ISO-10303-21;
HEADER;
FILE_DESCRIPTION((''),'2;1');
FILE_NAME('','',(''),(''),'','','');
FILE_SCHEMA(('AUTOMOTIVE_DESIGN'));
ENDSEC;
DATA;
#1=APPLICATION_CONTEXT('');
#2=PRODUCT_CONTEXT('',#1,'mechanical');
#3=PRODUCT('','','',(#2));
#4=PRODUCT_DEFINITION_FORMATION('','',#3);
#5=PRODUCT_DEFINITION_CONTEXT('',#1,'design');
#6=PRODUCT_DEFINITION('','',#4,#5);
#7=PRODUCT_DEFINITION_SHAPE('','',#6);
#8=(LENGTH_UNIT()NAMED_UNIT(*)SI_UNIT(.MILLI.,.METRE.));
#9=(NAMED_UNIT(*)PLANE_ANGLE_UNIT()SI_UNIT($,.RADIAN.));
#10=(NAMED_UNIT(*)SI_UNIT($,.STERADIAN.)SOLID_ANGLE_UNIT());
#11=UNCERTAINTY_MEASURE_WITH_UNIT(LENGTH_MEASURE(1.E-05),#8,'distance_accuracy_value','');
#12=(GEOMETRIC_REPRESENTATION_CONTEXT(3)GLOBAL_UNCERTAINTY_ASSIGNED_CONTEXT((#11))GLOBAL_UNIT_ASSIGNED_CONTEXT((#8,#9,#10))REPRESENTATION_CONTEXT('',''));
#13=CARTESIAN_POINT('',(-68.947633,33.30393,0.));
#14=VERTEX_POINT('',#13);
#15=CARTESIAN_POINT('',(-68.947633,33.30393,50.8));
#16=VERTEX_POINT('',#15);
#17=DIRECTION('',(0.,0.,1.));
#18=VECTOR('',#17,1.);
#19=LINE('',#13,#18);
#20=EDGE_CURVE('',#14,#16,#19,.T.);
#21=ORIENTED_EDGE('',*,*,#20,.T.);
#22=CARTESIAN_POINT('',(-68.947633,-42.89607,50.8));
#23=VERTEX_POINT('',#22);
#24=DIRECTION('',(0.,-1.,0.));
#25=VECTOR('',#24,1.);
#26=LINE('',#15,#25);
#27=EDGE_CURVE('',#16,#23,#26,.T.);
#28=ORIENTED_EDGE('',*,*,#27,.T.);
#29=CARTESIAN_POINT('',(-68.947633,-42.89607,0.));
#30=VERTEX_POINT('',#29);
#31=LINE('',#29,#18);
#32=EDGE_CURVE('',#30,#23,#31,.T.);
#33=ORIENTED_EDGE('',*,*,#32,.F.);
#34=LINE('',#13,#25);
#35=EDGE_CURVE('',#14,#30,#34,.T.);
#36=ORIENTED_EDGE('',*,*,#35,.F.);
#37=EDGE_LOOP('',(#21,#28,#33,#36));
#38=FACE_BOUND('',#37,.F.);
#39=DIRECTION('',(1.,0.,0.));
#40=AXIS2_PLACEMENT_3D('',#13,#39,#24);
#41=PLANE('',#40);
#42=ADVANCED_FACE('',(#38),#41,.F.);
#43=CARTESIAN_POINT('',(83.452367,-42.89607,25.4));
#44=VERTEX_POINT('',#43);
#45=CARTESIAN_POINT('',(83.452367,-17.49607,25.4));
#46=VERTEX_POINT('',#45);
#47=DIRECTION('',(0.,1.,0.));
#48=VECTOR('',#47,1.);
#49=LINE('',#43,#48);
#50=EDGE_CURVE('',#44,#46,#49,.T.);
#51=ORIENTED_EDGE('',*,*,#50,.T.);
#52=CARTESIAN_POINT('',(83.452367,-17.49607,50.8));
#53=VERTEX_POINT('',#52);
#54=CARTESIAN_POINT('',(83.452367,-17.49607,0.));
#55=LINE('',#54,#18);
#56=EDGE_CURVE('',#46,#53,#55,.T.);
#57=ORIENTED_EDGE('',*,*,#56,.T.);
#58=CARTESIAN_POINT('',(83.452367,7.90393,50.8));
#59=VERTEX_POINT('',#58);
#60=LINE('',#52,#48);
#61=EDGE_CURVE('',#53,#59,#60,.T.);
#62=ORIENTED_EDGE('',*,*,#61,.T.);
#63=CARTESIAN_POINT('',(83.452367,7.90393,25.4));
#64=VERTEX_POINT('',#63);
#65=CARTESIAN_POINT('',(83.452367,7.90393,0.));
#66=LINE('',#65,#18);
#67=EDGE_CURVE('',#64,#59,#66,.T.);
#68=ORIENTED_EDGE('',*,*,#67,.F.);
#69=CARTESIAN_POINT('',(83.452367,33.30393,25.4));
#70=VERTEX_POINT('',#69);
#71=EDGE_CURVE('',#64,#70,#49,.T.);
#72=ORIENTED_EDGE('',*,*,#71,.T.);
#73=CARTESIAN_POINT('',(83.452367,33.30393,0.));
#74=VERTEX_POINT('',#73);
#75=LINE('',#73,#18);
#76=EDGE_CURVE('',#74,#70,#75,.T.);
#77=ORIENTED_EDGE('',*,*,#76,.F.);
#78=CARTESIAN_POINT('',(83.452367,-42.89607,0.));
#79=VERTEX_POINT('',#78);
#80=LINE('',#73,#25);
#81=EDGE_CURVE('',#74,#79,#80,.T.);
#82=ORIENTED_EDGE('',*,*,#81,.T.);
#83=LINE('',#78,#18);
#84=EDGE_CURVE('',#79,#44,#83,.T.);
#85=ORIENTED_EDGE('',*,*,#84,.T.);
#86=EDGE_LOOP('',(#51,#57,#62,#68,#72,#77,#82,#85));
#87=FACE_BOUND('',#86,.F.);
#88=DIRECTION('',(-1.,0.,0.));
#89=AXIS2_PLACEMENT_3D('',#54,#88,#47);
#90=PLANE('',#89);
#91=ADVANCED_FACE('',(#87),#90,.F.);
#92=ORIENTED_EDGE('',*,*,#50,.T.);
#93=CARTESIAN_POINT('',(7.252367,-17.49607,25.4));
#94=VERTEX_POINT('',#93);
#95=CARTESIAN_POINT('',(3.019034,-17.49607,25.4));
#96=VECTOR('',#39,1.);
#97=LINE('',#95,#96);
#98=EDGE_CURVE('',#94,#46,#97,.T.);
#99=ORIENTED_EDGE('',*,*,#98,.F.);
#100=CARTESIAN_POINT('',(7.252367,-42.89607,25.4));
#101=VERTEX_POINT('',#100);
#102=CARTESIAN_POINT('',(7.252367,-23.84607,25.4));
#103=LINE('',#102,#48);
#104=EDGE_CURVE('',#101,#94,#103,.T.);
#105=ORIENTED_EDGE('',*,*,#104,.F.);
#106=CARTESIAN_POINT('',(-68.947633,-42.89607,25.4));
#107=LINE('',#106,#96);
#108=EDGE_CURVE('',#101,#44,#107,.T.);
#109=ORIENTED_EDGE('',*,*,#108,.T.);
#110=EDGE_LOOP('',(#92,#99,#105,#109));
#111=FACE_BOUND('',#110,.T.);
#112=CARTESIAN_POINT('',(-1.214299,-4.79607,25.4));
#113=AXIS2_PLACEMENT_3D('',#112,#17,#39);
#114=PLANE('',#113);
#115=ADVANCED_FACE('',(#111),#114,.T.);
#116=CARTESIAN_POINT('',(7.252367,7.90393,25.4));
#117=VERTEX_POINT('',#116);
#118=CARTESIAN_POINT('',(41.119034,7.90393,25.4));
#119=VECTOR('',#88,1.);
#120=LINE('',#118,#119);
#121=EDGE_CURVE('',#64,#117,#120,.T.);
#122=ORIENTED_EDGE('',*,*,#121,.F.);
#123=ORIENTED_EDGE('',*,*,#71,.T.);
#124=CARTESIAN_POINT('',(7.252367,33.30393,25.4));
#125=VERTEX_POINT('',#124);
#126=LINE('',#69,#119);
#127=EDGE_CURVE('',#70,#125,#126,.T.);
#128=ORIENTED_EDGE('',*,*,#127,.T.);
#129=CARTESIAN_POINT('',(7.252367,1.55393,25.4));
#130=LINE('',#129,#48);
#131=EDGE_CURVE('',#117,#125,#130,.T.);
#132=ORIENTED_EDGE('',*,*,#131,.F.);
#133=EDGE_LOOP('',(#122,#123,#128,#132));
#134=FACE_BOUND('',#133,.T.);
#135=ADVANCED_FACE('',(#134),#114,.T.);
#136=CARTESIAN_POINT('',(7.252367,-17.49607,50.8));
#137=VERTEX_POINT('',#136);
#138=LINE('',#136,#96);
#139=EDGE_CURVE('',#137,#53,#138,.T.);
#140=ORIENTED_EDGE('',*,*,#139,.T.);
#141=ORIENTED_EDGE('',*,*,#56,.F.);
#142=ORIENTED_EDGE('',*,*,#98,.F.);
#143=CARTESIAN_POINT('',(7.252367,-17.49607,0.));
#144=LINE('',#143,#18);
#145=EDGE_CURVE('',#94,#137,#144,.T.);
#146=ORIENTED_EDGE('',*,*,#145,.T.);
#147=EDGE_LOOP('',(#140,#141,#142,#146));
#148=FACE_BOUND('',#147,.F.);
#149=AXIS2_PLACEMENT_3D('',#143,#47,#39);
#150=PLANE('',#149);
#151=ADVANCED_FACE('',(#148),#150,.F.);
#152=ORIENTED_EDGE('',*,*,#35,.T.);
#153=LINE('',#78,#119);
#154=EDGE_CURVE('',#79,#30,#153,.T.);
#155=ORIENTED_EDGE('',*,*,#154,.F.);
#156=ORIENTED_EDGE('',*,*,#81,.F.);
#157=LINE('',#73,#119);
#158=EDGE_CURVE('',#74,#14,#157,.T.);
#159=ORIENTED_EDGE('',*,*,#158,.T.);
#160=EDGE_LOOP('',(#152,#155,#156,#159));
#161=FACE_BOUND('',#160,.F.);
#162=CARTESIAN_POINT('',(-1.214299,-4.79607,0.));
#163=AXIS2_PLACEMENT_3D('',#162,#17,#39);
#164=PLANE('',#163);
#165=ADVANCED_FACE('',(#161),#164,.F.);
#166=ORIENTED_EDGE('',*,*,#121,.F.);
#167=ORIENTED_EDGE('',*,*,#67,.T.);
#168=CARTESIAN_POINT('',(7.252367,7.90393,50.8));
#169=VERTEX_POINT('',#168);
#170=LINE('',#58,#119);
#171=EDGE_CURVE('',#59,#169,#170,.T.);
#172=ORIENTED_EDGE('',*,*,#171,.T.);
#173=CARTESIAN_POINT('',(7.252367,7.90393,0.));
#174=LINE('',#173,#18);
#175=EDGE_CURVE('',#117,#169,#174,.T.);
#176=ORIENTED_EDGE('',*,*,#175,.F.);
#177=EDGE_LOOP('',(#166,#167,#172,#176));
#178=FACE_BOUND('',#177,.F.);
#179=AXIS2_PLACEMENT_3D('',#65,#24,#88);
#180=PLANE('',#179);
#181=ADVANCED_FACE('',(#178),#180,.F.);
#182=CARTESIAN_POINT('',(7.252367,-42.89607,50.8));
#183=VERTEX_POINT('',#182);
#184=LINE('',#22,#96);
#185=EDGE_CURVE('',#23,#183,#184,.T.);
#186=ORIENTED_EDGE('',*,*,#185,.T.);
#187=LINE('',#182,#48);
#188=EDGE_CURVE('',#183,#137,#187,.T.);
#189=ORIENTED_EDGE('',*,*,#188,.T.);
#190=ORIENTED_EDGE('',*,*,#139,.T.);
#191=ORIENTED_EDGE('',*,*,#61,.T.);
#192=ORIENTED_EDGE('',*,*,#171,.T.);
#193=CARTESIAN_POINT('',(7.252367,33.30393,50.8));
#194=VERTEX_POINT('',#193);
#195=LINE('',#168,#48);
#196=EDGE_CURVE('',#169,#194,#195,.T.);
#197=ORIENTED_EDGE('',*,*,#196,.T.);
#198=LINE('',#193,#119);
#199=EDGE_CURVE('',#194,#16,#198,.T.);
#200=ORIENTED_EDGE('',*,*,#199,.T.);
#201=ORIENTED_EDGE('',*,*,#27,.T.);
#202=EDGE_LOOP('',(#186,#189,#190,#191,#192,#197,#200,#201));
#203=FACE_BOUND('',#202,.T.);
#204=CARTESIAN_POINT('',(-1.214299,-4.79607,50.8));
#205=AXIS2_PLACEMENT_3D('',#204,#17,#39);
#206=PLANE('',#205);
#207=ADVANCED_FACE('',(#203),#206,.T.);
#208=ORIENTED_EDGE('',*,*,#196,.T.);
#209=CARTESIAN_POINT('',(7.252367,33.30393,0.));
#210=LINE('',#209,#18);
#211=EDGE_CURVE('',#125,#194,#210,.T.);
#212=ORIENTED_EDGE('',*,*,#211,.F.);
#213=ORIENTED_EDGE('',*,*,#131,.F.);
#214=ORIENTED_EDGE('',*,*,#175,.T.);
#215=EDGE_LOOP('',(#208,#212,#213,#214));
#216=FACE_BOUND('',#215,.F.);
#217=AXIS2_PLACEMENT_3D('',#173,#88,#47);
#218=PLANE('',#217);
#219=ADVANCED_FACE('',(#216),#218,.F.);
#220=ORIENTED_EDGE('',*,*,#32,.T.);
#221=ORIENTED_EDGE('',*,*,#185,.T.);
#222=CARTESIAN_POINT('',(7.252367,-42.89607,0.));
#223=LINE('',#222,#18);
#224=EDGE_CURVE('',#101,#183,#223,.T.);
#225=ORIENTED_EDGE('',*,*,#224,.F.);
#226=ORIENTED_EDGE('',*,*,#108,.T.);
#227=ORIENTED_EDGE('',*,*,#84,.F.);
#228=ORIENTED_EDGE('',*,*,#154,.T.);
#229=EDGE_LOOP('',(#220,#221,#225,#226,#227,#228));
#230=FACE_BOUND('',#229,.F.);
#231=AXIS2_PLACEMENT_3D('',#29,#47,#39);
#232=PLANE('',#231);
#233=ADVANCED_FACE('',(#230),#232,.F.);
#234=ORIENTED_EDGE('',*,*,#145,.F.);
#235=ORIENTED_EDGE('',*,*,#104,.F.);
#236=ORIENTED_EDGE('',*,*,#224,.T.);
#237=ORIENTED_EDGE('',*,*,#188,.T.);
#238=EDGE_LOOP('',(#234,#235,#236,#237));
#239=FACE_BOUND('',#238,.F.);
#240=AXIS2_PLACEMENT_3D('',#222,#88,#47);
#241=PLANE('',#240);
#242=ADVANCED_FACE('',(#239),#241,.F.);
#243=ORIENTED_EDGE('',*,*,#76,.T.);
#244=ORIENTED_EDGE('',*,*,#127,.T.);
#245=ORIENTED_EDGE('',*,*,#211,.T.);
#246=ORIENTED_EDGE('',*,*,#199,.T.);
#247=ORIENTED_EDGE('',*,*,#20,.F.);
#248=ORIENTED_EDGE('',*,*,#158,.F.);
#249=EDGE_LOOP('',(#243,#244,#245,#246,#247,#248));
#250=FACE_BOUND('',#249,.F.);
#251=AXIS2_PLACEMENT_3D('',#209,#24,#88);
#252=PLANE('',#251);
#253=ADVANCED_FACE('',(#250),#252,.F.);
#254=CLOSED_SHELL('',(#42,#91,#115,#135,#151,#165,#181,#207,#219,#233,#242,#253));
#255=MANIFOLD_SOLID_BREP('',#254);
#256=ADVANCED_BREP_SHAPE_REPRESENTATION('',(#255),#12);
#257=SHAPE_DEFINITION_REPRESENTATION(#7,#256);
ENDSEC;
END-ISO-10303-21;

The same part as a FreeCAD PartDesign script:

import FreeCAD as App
import Part
import Sketcher

V = App.Vector
Q = App.Units.Quantity

doc = App.newDocument("Part")
body = doc.addObject("PartDesign::Body", "Body")

# Sketch on XY plane
sketch1 = body.newObject("Sketcher::SketchObject", "Sketch")
sketch1.AttachmentSupport = (doc.getObject("XY_Plane"), [""])
sketch1.MapMode = "FlatFace"
sketch1.addGeometry(Part.LineSegment(V(7.252367, 33.30393, 0), V(-68.947633, 33.30393, 0)), False)
sketch1.addGeometry(Part.LineSegment(V(-68.947633, 33.30393, 0), V(-68.947633, -42.89607, 0)), False)
sketch1.addGeometry(Part.LineSegment(V(-68.947633, -42.89607, 0), V(7.252367, -42.89607, 0)), False)
sketch1.addGeometry(Part.LineSegment(V(7.252367, -42.89607, 0), V(7.252367, -17.49607, 0)), False)
sketch1.addGeometry(Part.LineSegment(V(7.252367, -17.49607, 0), V(83.452367, -17.49607, 0)), False)
sketch1.addGeometry(Part.LineSegment(V(83.452367, -17.49607, 0), V(83.452367, 7.90393, 0)), False)
sketch1.addGeometry(Part.LineSegment(V(83.452367, 7.90393, 0), V(7.252367, 7.90393, 0)), False)
sketch1.addGeometry(Part.LineSegment(V(7.252367, 7.90393, 0), V(7.252367, 33.30393, 0)), False)
sketch1.addConstraint(Sketcher.Constraint("Coincident", 0, 2, 1, 1))
sketch1.addConstraint(Sketcher.Constraint("Coincident", 1, 2, 2, 1))
sketch1.addConstraint(Sketcher.Constraint("Coincident", 2, 2, 3, 1))
sketch1.addConstraint(Sketcher.Constraint("Coincident", 3, 2, 4, 1))
sketch1.addConstraint(Sketcher.Constraint("Coincident", 4, 2, 5, 1))
sketch1.addConstraint(Sketcher.Constraint("Coincident", 5, 2, 6, 1))
sketch1.addConstraint(Sketcher.Constraint("Coincident", 6, 2, 7, 1))
sketch1.addConstraint(Sketcher.Constraint("Coincident", 7, 2, 0, 1))
sketch1.addConstraint(Sketcher.Constraint("Horizontal", 0))
sketch1.addConstraint(Sketcher.Constraint("Vertical", 1))
sketch1.addConstraint(Sketcher.Constraint("Horizontal", 2))
sketch1.addConstraint(Sketcher.Constraint("Vertical", 3))
sketch1.addConstraint(Sketcher.Constraint("Horizontal", 4))
sketch1.addConstraint(Sketcher.Constraint("Vertical", 5))
sketch1.addConstraint(Sketcher.Constraint("Horizontal", 6))
sketch1.addConstraint(Sketcher.Constraint("Vertical", 7))
sketch1.addConstraint(Sketcher.Constraint("Vertical", 3, 2, 6, 2))
sketch1.addConstraint(Sketcher.Constraint("Equal", 2, 4))
sketch1.addConstraint(Sketcher.Constraint("Equal", 6, 1))
sketch1.addConstraint(Sketcher.Constraint("Equal", 3, 5))
sketch1.addConstraint(Sketcher.Constraint("Equal", 5, 7))
sketch1.addConstraint(Sketcher.Constraint("DistanceX", 0, 2, 0, 1, Q("3 in")))
sketch1.addConstraint(Sketcher.Constraint("DistanceY", -1, 1, 0, 2, Q("33.30393 mm")))
sketch1.addConstraint(Sketcher.Constraint("DistanceX", 0, 2, -1, 1, Q("68.947633 mm")))
pad1 = body.newObject("PartDesign::Pad", "Pad")
pad1.Profile = sketch1
pad1.Length = Q("2 in")

# Sketch on XY plane
sketch2 = body.newObject("Sketcher::SketchObject", "Sketch001")
sketch2.AttachmentSupport = (doc.getObject("XY_Plane"), [""])
sketch2.MapMode = "FlatFace"
sketch2.addGeometry(Part.LineSegment(V(-68.947633, 33.30393, 0), V(-68.947633, -42.89607, 0)), False)
sketch2.addGeometry(Part.LineSegment(V(-68.947633, -42.89607, 0), V(83.452367, -42.89607, 0)), False)
sketch2.addGeometry(Part.LineSegment(V(83.452367, -42.89607, 0), V(83.452367, 33.30393, 0)), False)
sketch2.addGeometry(Part.LineSegment(V(83.452367, 33.30393, 0), V(-68.947633, 33.30393, 0)), False)
sketch2.addConstraint(Sketcher.Constraint("Coincident", 0, 2, 1, 1))
sketch2.addConstraint(Sketcher.Constraint("Coincident", 1, 2, 2, 1))
sketch2.addConstraint(Sketcher.Constraint("Coincident", 2, 2, 3, 1))
sketch2.addConstraint(Sketcher.Constraint("Coincident", 3, 2, 0, 1))
sketch2.addConstraint(Sketcher.Constraint("Vertical", 0))
sketch2.addConstraint(Sketcher.Constraint("Horizontal", 1))
sketch2.addConstraint(Sketcher.Constraint("Vertical", 2))
sketch2.addConstraint(Sketcher.Constraint("Horizontal", 3))
sketch2.addConstraint(Sketcher.Constraint("DistanceX", 1, 1, 1, 2, Q("6 in")))
sketch2.addConstraint(Sketcher.Constraint("DistanceY", 0, 2, 0, 1, Q("3 in")))
sketch2.addConstraint(Sketcher.Constraint("DistanceY", 0, 2, -1, 1, Q("42.89607 mm")))
sketch2.addConstraint(Sketcher.Constraint("DistanceX", 0, 2, -1, 1, Q("68.947633 mm")))
pad2 = body.newObject("PartDesign::Pad", "Pad001")
pad2.Profile = sketch2
pad2.Length = Q("1 in")

doc.recompute()
